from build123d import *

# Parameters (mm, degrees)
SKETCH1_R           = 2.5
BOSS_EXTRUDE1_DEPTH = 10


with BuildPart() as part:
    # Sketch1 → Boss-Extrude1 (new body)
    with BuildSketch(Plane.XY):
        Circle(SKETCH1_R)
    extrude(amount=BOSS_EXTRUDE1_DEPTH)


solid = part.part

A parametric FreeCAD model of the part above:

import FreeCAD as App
import Part
import Sketcher
from FreeCAD import Vector
Q = App.Units.Quantity

doc = App.newDocument("Part")
body = doc.addObject("PartDesign::Body", "Body")

# Sketch on XY plane
sketch1 = doc.addObject("Sketcher::SketchObject", "Sketch")
body.addObject(sketch1)
sketch1.AttachmentSupport = (doc.XY_Plane, [""])
sketch1.MapMode = "FlatFace"
sketch1.addGeometry(Part.Circle(Vector(0, 0, 0), Vector(0, 0, 1), 2.5), False)
sketch1.addConstraint([
    Sketcher.Constraint("Coincident", 0, 3, -1, 1),
    Sketcher.Constraint("Diameter", 0, Q("5 mm")),
])
pad1 = doc.addObject("PartDesign::Pad", "Pad")
body.addObject(pad1)
pad1.Profile = sketch1
pad1.Length = 10

doc.recompute()
